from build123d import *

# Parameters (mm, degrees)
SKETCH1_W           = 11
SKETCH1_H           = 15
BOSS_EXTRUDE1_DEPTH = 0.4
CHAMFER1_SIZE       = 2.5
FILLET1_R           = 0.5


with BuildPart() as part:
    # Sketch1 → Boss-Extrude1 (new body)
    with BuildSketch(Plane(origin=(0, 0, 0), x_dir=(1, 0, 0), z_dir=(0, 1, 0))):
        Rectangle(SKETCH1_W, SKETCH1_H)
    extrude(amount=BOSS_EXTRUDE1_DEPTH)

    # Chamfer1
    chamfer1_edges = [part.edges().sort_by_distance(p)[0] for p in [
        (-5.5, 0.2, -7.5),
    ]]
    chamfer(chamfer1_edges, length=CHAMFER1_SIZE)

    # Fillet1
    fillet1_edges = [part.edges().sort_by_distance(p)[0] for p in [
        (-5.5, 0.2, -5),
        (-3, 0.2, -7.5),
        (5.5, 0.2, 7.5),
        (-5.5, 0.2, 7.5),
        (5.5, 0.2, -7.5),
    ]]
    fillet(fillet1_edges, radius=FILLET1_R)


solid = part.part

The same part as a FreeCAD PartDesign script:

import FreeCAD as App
import Part
import Sketcher

V = App.Vector


def edges_at(feature, points):
    """Names of the edges that pass closest to the given points."""
    edges = feature.Shape.Edges
    near = lambda p: min(range(len(edges)), key=lambda i: edges[i].distToShape(Part.Vertex(*p))[0])
    return sorted({f"Edge{near(p) + 1}" for p in points})

doc = App.newDocument("Part")
params = doc.addObject("Spreadsheet::Sheet", "Params")
for row, (alias, value) in enumerate([
    ("sketch1_width", "11 mm"),
    ("sketch1_height", "15 mm"),
    ("pad1_length", "0.4 mm"),
    ("chamfer_size", "2.5 mm"),
    ("fillet_radius", "0.5 mm"),
], start=1):
    params.set(f"A{row}", alias)
    params.set(f"B{row}", "=" + value)
    params.setAlias(f"B{row}", alias)

body = doc.addObject("PartDesign::Body", "Body")

# Sketch on XZ plane
sketch1 = body.newObject("Sketcher::SketchObject", "Sketch")
sketch1.AttachmentSupport = (doc.getObject("XZ_Plane"), [""])
sketch1.MapMode = "FlatFace"
sketch1.addGeometry([
    Part.LineSegment(V(-5.5, -7.5, 0), V(-5.5, 7.5, 0)),
    Part.LineSegment(V(-5.5, 7.5, 0), V(5.5, 7.5, 0)),
    Part.LineSegment(V(5.5, 7.5, 0), V(5.5, -7.5, 0)),
    Part.LineSegment(V(5.5, -7.5, 0), V(-5.5, -7.5, 0)),
], False)
sketch1.addConstraint([
    Sketcher.Constraint("Coincident", 0, 2, 1, 1),
    Sketcher.Constraint("Coincident", 1, 2, 2, 1),
    Sketcher.Constraint("Coincident", 2, 2, 3, 1),
    Sketcher.Constraint("Coincident", 3, 2, 0, 1),
    Sketcher.Constraint("Vertical", 0),
    Sketcher.Constraint("Horizontal", 1),
    Sketcher.Constraint("Vertical", 2),
    Sketcher.Constraint("Horizontal", 3),
    Sketcher.Constraint("Symmetric", 0, 2, 2, 2, -1, 1),
    Sketcher.Constraint("DistanceX", 1, 1, 1, 2, 11.0),
    Sketcher.Constraint("DistanceY", 0, 1, 0, 2, 15.0),
])
sketch1.setExpression("Constraints[9]", "Params.sketch1_width")
sketch1.setExpression("Constraints[10]", "Params.sketch1_height")
pad1 = body.newObject("PartDesign::Pad", "Pad")
pad1.Profile = sketch1
pad1.setExpression("Length", "Params.pad1_length")
pad1.Reversed = True
doc.recompute()

chamfer = body.newObject("PartDesign::Chamfer", "Chamfer")
chamfer.Base = (pad1, edges_at(pad1, [(-5.5, 0.2, -7.5)]))
chamfer.setExpression("Size", "Params.chamfer_size")
doc.recompute()

fillet = body.newObject("PartDesign::Fillet", "Fillet")
fillet.Base = (chamfer, edges_at(chamfer, [
    (-5.5, 0.2, -5),
    (-3, 0.2, -7.5),
    (5.5, 0.2, 7.5),
    (-5.5, 0.2, 7.5),
    (5.5, 0.2, -7.5),
]))
fillet.setExpression("Radius", "Params.fillet_radius")

doc.recompute()
